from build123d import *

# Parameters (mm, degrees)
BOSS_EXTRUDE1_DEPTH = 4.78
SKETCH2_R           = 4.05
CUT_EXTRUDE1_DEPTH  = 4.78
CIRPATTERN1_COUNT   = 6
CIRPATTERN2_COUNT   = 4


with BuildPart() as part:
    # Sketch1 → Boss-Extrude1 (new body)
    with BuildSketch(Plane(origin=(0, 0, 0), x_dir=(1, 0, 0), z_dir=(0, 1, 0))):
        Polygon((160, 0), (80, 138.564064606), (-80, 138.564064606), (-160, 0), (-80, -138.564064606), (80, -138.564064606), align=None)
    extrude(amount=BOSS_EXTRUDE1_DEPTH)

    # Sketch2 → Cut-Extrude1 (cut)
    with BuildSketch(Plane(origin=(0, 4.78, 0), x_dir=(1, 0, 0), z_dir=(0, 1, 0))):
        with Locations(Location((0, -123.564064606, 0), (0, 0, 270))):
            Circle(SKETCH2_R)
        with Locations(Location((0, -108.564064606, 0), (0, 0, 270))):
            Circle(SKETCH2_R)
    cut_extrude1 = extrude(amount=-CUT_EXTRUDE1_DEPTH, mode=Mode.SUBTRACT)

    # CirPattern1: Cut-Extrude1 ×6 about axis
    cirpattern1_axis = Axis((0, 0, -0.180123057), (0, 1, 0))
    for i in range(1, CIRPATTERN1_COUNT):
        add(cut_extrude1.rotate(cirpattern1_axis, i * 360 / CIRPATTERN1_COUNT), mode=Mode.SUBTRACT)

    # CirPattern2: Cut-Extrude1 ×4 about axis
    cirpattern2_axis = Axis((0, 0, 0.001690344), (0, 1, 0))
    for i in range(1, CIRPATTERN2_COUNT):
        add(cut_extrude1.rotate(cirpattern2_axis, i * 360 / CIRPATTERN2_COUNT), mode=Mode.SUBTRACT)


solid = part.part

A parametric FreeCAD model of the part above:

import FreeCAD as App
import Part
import Sketcher

V = App.Vector
Q = App.Units.Quantity


def add_polygon(sketch, points):
    """Adds a closed chain of lines whose ends are joined by coincident constraints."""
    first, n = sketch.GeometryCount, len(points)
    for a, b in zip(points, points[1:] + points[:1]):
        sketch.addGeometry(Part.LineSegment(App.Vector(*a, 0), App.Vector(*b, 0)), False)
    for i in range(n):
        sketch.addConstraint(Sketcher.Constraint("Coincident", first + i, 2, first + (i + 1) % n, 1))

doc = App.newDocument("Part")
body = doc.addObject("PartDesign::Body", "Body")

sketch1 = body.newObject("Sketcher::SketchObject", "Sketch")
sketch1.AttachmentSupport = (doc.getObject("XZ_Plane"), [""])
sketch1.MapMode = "FlatFace"
add_polygon(sketch1, [(160, 0), (80, -139), (-80, -139), (-160, 0), (-80, 139), (80, 139)])
sketch1.addConstraint(Sketcher.Constraint("Horizontal", 1))
sketch1.addConstraint(Sketcher.Constraint("Horizontal", 4))
sketch1.addConstraint(Sketcher.Constraint("Symmetric", 0, 2, 3, 2, -1, 1))
sketch1.addConstraint(Sketcher.Constraint("Symmetric", 2, 2, 5, 2, -1, 1))
sketch1.addConstraint(Sketcher.Constraint("PointOnObject", 2, 2, -1))
sketch1.addConstraint(Sketcher.Constraint("Parallel", 2, 5))
sketch1.addConstraint(Sketcher.Constraint("Vertical", 1, 2, 3, 2))
sketch1.addConstraint(Sketcher.Constraint("DistanceX", 1, 2, 1, 1, Q("160 mm")))
sketch1.addConstraint(Sketcher.Constraint("Angle", 0, Q("-120 deg")))
sketch1.addConstraint(Sketcher.Constraint("Distance", 0, Q("160 mm")))
pad1 = body.newObject("PartDesign::Pad", "Pad")
pad1.Profile = sketch1
pad1.Length = 4.78
pad1.Reversed = True

sketch2 = body.newObject("Sketcher::SketchObject", "Sketch001")
sketch2.AttachmentSupport = (doc.getObject("XZ_Plane"), [""])
sketch2.MapMode = "FlatFace"
sketch2.AttachmentOffset = App.Placement(V(0, 0, -4.78), App.Rotation())
sketch2.addGeometry(Part.Circle(V(0, 123.6, 0), V(0, 0, 1), 4), False)
sketch2.addGeometry(Part.Circle(V(0, 108.6, 0), V(0, 0, 1), 4), False)
sketch2.addConstraint(Sketcher.Constraint("Equal", 0, 1))
sketch2.addConstraint(Sketcher.Constraint("PointOnObject", 0, 3, -2))
sketch2.addConstraint(Sketcher.Constraint("PointOnObject", 1, 3, -2))
sketch2.addConstraint(Sketcher.Constraint("Diameter", 0, Q("8.1 mm")))
sketch2.addConstraint(Sketcher.Constraint("DistanceY", 1, 3, 0, 3, Q("15 mm")))
sketch2.addConstraint(Sketcher.Constraint("DistanceY", -1, 1, 0, 3, Q("123.564065 mm")))
pocket1 = body.newObject("PartDesign::Pocket", "Pocket")
pocket1.Profile = sketch2
pocket1.Length = 4.78
pocket1.Reversed = True
doc.recompute()

datumline = body.newObject("PartDesign::Line", "DatumLine")
datumline.Placement = App.Placement(V(0, 0, -0.180123), App.Rotation(V(0, 0, 1), V(0, 1, 0)))
polarpattern = body.newObject("PartDesign::PolarPattern", "PolarPattern")
polarpattern.Originals = [pocket1]
polarpattern.Axis = (datumline, [""])
polarpattern.Angle = 360
polarpattern.Occurrences = 6
body.Tip = polarpattern
doc.recompute()

datumline2 = body.newObject("PartDesign::Line", "DatumLine001")
datumline2.Placement = App.Placement(V(0, 0, 0.00169), App.Rotation(V(0, 0, 1), V(0, 1, 0)))
polarpattern2 = body.newObject("PartDesign::PolarPattern", "PolarPattern001")
polarpattern2.Originals = [pocket1]
polarpattern2.Axis = (datumline2, [""])
polarpattern2.Angle = 360
polarpattern2.Occurrences = 4
body.Tip = polarpattern2

doc.recompute()
